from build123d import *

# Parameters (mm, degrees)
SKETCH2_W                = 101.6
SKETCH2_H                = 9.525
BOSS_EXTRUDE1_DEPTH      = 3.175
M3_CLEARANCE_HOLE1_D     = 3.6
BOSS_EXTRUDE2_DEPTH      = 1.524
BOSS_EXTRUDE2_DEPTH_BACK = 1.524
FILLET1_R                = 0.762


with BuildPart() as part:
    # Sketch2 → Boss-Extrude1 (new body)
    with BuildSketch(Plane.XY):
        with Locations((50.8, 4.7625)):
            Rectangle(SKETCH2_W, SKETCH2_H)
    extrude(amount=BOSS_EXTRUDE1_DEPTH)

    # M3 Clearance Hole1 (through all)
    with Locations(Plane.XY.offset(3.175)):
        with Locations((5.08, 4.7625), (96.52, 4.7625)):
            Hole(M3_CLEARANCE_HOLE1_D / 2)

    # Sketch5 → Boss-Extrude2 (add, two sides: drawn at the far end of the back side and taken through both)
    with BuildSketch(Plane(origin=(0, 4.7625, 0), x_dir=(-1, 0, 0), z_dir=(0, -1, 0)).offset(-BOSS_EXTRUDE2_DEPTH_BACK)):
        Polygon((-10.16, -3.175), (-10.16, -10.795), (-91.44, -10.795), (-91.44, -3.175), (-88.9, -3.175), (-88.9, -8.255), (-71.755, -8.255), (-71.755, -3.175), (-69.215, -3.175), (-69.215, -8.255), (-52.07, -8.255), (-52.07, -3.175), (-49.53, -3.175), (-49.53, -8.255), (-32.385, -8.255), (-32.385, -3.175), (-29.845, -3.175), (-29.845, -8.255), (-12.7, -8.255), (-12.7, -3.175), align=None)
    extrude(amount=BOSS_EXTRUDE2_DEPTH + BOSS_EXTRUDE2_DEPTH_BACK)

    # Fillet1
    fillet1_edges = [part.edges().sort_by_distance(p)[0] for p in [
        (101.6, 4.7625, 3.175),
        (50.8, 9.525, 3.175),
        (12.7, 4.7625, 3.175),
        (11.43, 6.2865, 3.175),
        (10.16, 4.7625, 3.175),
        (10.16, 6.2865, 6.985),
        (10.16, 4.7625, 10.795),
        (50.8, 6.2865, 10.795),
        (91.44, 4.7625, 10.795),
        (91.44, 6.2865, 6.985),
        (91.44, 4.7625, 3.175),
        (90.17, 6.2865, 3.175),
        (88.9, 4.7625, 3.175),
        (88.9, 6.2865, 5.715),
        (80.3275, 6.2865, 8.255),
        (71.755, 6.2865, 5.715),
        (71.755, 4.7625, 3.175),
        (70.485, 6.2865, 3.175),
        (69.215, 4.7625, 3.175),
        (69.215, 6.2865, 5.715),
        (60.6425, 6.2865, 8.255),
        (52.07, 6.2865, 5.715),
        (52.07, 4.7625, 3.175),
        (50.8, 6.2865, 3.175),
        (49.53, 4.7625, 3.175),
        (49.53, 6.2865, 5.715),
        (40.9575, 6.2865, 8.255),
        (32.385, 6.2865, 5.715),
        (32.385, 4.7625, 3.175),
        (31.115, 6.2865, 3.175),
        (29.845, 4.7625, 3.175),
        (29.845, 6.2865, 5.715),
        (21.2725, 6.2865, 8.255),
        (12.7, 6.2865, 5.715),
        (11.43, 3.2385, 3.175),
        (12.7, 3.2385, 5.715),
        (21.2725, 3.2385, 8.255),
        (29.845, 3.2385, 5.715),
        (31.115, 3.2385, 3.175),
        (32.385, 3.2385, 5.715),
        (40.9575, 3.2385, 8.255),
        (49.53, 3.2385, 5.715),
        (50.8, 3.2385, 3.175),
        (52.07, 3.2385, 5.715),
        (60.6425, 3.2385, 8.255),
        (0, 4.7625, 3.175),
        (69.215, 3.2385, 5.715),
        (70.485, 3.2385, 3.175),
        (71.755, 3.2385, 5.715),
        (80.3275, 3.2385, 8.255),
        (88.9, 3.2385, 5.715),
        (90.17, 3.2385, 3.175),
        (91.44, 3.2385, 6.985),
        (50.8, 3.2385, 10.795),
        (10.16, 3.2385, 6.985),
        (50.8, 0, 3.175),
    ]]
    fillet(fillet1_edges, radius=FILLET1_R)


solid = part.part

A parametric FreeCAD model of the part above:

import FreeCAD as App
import Part
import Sketcher
from FreeCAD import Vector
Q = App.Units.Quantity


def edges_at(feature, points):
    """Names of the edges that pass closest to the given points."""
    edges = feature.Shape.Edges
    near = lambda p: min(range(len(edges)), key=lambda i: edges[i].distToShape(Part.Vertex(*p))[0])
    return sorted({f"Edge{near(p) + 1}" for p in points})


def add_polygon(sketch, points):
    """Adds a closed chain of lines whose ends are joined by coincident constraints."""
    first, n = sketch.GeometryCount, len(points)
    for a, b in zip(points, points[1:] + points[:1]):
        sketch.addGeometry(Part.LineSegment(App.Vector(*a, 0), App.Vector(*b, 0)), False)
    for i in range(n):
        sketch.addConstraint(Sketcher.Constraint("Coincident", first + i, 2, first + (i + 1) % n, 1))

doc = App.newDocument("Part")
body = doc.addObject("PartDesign::Body", "Body")

# Sketch on XY plane
sketch1 = body.newObject("Sketcher::SketchObject", "Sketch")
sketch1.AttachmentSupport = (doc.getObject("XY_Plane"), [""])
sketch1.MapMode = "FlatFace"
add_polygon(sketch1, [(0, 10), (0, 0), (102, 0), (102, 10)])  # lines 0-3
sketch1.addConstraint([
    Sketcher.Constraint("Vertical", 0),
    Sketcher.Constraint("Horizontal", 1),
    Sketcher.Constraint("Vertical", 2),
    Sketcher.Constraint("Horizontal", 3),
    Sketcher.Constraint("Coincident", 0, 2, -1, 1),
    Sketcher.Constraint("DistanceX", 1, 1, 1, 2, Q("4 in")),
    Sketcher.Constraint("DistanceY", 0, 2, 0, 1, Q("0.375 in")),
])
pad1 = body.newObject("PartDesign::Pad", "Pad")
pad1.Profile = sketch1
pad1.Length = Q("0.125 in")

# Sketch on XY plane
sketch2 = body.newObject("Sketcher::SketchObject", "Sketch001")
sketch2.AttachmentSupport = (doc.getObject("XY_Plane"), [""])
sketch2.MapMode = "FlatFace"
sketch2.AttachmentOffset = App.Placement(Vector(0, 0, 0.125 * 25.4), App.Rotation())
sketch2.addGeometry([
    Part.Circle(Vector(5.1, 4.8, 0), Vector(0, 0, 1), 1.8),
    Part.Circle(Vector(96.5, 4.8, 0), Vector(0, 0, 1), 1.8),
], False)
sketch2.addConstraint([
    Sketcher.Constraint("Equal", 0, 1),
    Sketcher.Constraint("Horizontal", 0, 3, 1, 3),
    Sketcher.Constraint("DistanceX", -1, 1, 0, 3, Q("0.2 in")),
    Sketcher.Constraint("DistanceX", -1, 1, 1, 3, Q("3.8 in")),
    Sketcher.Constraint("Diameter", 0, Q("3.6 mm")),
    Sketcher.Constraint("DistanceY", -1, 1, 0, 3, Q("0.1875 in")),
])
doc.recompute()
hole = body.newObject("PartDesign::Hole", "Hole")
hole.Profile = sketch2
hole.ThreadType = "None"
hole.Diameter = 3.6
hole.DepthType = "ThroughAll"

# Sketch on XZ plane
sketch3 = body.newObject("Sketcher::SketchObject", "Sketch002")
sketch3.AttachmentSupport = (doc.getObject("XZ_Plane"), [""])
sketch3.MapMode = "FlatFace"
sketch3.AttachmentOffset = App.Placement(Vector(0, 0, -0.1875 * 25.4), App.Rotation())
add_polygon(sketch3, [(10.2, 10.8), (10.2, 3.2), (12.7, 3.2), (12.7, 8.3), (29.8, 8.3), (29.8, 3.2), (32.4, 3.2), (32.4, 8.3), (49.5, 8.3), (49.5, 3.2), (52.1, 3.2), (52.1, 8.3), (69.2, 8.3), (69.2, 3.2), (71.8, 3.2), (71.8, 8.3), (88.9, 8.3), (88.9, 3.2), (91.4, 3.2), (91.4, 10.8)])  # lines 0-19
sketch3.addConstraint([
    Sketcher.Constraint("Vertical", 0),
    Sketcher.Constraint("Horizontal", 1),
    Sketcher.Constraint("Vertical", 2),
    Sketcher.Constraint("Horizontal", 3),
    Sketcher.Constraint("Vertical", 4),
    Sketcher.Constraint("Horizontal", 5),
    Sketcher.Constraint("Vertical", 6),
    Sketcher.Constraint("Horizontal", 7),
    Sketcher.Constraint("Vertical", 8),
    Sketcher.Constraint("Horizontal", 9),
    Sketcher.Constraint("Vertical", 10),
    Sketcher.Constraint("Horizontal", 11),
    Sketcher.Constraint("Vertical", 12),
    Sketcher.Constraint("Horizontal", 13),
    Sketcher.Constraint("Vertical", 14),
    Sketcher.Constraint("Horizontal", 15),
    Sketcher.Constraint("Vertical", 16),
    Sketcher.Constraint("Horizontal", 17),
    Sketcher.Constraint("Vertical", 18),
    Sketcher.Constraint("Horizontal", 19),
    Sketcher.Constraint("Horizontal", 1, 2, 4, 2),
    Sketcher.Constraint("Horizontal", 3, 2, 6, 2),
    Sketcher.Constraint("Horizontal", 5, 2, 8, 2),
    Sketcher.Constraint("Horizontal", 7, 2, 10, 2),
    Sketcher.Constraint("Horizontal", 9, 2, 12, 2),
    Sketcher.Constraint("Horizontal", 11, 2, 14, 2),
    Sketcher.Constraint("Horizontal", 13, 2, 16, 2),
    Sketcher.Constraint("Equal", 1, 5),
    Sketcher.Constraint("Equal", 3, 7),
    Sketcher.Constraint("Equal", 5, 9),
    Sketcher.Constraint("Equal", 7, 11),
    Sketcher.Constraint("Equal", 9, 13),
    Sketcher.Constraint("Equal", 11, 15),
    Sketcher.Constraint("Equal", 13, 17),
    Sketcher.Constraint("DistanceX", 1, 1, 1, 2, Q("0.1 in")),
    Sketcher.Constraint("DistanceX", 19, 2, 19, 1, Q("3.2 in")),
    Sketcher.Constraint("DistanceY", 0, 2, 0, 1, Q("0.3 in")),
    Sketcher.Constraint("DistanceY", 2, 1, 2, 2, Q("0.2 in")),
    Sketcher.Constraint("DistanceX", -1, 1, 0, 2, Q("0.4 in")),
    Sketcher.Constraint("DistanceY", -1, 1, 0, 2, Q("0.125 in")),
])
pad2 = body.newObject("PartDesign::Pad", "Pad001")
pad2.Profile = sketch3
pad2.Type = "TwoLengths"
pad2.Length = Q("0.06 in")
pad2.Length2 = Q("0.06 in")
doc.recompute()

fillet = body.newObject("PartDesign::Fillet", "Fillet")
fillet.Base = (pad2, edges_at(pad2, [
    (101.6, 4.763, 3.175),
    (50.8, 9.525, 3.175),
    (12.7, 4.763, 3.175),
    (11.43, 6.287, 3.175),
    (10.16, 4.763, 3.175),
    (10.16, 6.287, 6.985),
    (10.16, 4.763, 10.795),
    (50.8, 6.287, 10.795),
    (91.44, 4.763, 10.795),
    (91.44, 6.287, 6.985),
    (91.44, 4.763, 3.175),
    (90.17, 6.287, 3.175),
    (88.9, 4.763, 3.175),
    (88.9, 6.287, 5.715),
    (80.328, 6.287, 8.255),
    (71.755, 6.287, 5.715),
    (71.755, 4.763, 3.175),
    (70.485, 6.287, 3.175),
    (69.215, 4.763, 3.175),
    (69.215, 6.287, 5.715),
    (60.642, 6.287, 8.255),
    (52.07, 6.287, 5.715),
    (52.07, 4.763, 3.175),
    (50.8, 6.287, 3.175),
    (49.53, 4.763, 3.175),
    (49.53, 6.287, 5.715),
    (40.958, 6.287, 8.255),
    (32.385, 6.287, 5.715),
    (32.385, 4.763, 3.175),
    (31.115, 6.287, 3.175),
    (29.845, 4.763, 3.175),
    (29.845, 6.287, 5.715),
    (21.273, 6.287, 8.255),
    (12.7, 6.287, 5.715),
    (11.43, 3.239, 3.175),
    (12.7, 3.239, 5.715),
    (21.273, 3.239, 8.255),
    (29.845, 3.239, 5.715),
    (31.115, 3.239, 3.175),
    (32.385, 3.239, 5.715),
    (40.958, 3.239, 8.255),
    (49.53, 3.239, 5.715),
    (50.8, 3.239, 3.175),
    (52.07, 3.239, 5.715),
    (60.642, 3.239, 8.255),
    (0, 4.763, 3.175),
    (69.215, 3.239, 5.715),
    (70.485, 3.239, 3.175),
    (71.755, 3.239, 5.715),
    (80.328, 3.239, 8.255),
    (88.9, 3.239, 5.715),
    (90.17, 3.239, 3.175),
    (91.44, 3.239, 6.985),
    (50.8, 3.239, 10.795),
    (10.16, 3.239, 6.985),
    (50.8, 0, 3.175),
]))
fillet.Radius = Q("0.03 in")

doc.recompute()
